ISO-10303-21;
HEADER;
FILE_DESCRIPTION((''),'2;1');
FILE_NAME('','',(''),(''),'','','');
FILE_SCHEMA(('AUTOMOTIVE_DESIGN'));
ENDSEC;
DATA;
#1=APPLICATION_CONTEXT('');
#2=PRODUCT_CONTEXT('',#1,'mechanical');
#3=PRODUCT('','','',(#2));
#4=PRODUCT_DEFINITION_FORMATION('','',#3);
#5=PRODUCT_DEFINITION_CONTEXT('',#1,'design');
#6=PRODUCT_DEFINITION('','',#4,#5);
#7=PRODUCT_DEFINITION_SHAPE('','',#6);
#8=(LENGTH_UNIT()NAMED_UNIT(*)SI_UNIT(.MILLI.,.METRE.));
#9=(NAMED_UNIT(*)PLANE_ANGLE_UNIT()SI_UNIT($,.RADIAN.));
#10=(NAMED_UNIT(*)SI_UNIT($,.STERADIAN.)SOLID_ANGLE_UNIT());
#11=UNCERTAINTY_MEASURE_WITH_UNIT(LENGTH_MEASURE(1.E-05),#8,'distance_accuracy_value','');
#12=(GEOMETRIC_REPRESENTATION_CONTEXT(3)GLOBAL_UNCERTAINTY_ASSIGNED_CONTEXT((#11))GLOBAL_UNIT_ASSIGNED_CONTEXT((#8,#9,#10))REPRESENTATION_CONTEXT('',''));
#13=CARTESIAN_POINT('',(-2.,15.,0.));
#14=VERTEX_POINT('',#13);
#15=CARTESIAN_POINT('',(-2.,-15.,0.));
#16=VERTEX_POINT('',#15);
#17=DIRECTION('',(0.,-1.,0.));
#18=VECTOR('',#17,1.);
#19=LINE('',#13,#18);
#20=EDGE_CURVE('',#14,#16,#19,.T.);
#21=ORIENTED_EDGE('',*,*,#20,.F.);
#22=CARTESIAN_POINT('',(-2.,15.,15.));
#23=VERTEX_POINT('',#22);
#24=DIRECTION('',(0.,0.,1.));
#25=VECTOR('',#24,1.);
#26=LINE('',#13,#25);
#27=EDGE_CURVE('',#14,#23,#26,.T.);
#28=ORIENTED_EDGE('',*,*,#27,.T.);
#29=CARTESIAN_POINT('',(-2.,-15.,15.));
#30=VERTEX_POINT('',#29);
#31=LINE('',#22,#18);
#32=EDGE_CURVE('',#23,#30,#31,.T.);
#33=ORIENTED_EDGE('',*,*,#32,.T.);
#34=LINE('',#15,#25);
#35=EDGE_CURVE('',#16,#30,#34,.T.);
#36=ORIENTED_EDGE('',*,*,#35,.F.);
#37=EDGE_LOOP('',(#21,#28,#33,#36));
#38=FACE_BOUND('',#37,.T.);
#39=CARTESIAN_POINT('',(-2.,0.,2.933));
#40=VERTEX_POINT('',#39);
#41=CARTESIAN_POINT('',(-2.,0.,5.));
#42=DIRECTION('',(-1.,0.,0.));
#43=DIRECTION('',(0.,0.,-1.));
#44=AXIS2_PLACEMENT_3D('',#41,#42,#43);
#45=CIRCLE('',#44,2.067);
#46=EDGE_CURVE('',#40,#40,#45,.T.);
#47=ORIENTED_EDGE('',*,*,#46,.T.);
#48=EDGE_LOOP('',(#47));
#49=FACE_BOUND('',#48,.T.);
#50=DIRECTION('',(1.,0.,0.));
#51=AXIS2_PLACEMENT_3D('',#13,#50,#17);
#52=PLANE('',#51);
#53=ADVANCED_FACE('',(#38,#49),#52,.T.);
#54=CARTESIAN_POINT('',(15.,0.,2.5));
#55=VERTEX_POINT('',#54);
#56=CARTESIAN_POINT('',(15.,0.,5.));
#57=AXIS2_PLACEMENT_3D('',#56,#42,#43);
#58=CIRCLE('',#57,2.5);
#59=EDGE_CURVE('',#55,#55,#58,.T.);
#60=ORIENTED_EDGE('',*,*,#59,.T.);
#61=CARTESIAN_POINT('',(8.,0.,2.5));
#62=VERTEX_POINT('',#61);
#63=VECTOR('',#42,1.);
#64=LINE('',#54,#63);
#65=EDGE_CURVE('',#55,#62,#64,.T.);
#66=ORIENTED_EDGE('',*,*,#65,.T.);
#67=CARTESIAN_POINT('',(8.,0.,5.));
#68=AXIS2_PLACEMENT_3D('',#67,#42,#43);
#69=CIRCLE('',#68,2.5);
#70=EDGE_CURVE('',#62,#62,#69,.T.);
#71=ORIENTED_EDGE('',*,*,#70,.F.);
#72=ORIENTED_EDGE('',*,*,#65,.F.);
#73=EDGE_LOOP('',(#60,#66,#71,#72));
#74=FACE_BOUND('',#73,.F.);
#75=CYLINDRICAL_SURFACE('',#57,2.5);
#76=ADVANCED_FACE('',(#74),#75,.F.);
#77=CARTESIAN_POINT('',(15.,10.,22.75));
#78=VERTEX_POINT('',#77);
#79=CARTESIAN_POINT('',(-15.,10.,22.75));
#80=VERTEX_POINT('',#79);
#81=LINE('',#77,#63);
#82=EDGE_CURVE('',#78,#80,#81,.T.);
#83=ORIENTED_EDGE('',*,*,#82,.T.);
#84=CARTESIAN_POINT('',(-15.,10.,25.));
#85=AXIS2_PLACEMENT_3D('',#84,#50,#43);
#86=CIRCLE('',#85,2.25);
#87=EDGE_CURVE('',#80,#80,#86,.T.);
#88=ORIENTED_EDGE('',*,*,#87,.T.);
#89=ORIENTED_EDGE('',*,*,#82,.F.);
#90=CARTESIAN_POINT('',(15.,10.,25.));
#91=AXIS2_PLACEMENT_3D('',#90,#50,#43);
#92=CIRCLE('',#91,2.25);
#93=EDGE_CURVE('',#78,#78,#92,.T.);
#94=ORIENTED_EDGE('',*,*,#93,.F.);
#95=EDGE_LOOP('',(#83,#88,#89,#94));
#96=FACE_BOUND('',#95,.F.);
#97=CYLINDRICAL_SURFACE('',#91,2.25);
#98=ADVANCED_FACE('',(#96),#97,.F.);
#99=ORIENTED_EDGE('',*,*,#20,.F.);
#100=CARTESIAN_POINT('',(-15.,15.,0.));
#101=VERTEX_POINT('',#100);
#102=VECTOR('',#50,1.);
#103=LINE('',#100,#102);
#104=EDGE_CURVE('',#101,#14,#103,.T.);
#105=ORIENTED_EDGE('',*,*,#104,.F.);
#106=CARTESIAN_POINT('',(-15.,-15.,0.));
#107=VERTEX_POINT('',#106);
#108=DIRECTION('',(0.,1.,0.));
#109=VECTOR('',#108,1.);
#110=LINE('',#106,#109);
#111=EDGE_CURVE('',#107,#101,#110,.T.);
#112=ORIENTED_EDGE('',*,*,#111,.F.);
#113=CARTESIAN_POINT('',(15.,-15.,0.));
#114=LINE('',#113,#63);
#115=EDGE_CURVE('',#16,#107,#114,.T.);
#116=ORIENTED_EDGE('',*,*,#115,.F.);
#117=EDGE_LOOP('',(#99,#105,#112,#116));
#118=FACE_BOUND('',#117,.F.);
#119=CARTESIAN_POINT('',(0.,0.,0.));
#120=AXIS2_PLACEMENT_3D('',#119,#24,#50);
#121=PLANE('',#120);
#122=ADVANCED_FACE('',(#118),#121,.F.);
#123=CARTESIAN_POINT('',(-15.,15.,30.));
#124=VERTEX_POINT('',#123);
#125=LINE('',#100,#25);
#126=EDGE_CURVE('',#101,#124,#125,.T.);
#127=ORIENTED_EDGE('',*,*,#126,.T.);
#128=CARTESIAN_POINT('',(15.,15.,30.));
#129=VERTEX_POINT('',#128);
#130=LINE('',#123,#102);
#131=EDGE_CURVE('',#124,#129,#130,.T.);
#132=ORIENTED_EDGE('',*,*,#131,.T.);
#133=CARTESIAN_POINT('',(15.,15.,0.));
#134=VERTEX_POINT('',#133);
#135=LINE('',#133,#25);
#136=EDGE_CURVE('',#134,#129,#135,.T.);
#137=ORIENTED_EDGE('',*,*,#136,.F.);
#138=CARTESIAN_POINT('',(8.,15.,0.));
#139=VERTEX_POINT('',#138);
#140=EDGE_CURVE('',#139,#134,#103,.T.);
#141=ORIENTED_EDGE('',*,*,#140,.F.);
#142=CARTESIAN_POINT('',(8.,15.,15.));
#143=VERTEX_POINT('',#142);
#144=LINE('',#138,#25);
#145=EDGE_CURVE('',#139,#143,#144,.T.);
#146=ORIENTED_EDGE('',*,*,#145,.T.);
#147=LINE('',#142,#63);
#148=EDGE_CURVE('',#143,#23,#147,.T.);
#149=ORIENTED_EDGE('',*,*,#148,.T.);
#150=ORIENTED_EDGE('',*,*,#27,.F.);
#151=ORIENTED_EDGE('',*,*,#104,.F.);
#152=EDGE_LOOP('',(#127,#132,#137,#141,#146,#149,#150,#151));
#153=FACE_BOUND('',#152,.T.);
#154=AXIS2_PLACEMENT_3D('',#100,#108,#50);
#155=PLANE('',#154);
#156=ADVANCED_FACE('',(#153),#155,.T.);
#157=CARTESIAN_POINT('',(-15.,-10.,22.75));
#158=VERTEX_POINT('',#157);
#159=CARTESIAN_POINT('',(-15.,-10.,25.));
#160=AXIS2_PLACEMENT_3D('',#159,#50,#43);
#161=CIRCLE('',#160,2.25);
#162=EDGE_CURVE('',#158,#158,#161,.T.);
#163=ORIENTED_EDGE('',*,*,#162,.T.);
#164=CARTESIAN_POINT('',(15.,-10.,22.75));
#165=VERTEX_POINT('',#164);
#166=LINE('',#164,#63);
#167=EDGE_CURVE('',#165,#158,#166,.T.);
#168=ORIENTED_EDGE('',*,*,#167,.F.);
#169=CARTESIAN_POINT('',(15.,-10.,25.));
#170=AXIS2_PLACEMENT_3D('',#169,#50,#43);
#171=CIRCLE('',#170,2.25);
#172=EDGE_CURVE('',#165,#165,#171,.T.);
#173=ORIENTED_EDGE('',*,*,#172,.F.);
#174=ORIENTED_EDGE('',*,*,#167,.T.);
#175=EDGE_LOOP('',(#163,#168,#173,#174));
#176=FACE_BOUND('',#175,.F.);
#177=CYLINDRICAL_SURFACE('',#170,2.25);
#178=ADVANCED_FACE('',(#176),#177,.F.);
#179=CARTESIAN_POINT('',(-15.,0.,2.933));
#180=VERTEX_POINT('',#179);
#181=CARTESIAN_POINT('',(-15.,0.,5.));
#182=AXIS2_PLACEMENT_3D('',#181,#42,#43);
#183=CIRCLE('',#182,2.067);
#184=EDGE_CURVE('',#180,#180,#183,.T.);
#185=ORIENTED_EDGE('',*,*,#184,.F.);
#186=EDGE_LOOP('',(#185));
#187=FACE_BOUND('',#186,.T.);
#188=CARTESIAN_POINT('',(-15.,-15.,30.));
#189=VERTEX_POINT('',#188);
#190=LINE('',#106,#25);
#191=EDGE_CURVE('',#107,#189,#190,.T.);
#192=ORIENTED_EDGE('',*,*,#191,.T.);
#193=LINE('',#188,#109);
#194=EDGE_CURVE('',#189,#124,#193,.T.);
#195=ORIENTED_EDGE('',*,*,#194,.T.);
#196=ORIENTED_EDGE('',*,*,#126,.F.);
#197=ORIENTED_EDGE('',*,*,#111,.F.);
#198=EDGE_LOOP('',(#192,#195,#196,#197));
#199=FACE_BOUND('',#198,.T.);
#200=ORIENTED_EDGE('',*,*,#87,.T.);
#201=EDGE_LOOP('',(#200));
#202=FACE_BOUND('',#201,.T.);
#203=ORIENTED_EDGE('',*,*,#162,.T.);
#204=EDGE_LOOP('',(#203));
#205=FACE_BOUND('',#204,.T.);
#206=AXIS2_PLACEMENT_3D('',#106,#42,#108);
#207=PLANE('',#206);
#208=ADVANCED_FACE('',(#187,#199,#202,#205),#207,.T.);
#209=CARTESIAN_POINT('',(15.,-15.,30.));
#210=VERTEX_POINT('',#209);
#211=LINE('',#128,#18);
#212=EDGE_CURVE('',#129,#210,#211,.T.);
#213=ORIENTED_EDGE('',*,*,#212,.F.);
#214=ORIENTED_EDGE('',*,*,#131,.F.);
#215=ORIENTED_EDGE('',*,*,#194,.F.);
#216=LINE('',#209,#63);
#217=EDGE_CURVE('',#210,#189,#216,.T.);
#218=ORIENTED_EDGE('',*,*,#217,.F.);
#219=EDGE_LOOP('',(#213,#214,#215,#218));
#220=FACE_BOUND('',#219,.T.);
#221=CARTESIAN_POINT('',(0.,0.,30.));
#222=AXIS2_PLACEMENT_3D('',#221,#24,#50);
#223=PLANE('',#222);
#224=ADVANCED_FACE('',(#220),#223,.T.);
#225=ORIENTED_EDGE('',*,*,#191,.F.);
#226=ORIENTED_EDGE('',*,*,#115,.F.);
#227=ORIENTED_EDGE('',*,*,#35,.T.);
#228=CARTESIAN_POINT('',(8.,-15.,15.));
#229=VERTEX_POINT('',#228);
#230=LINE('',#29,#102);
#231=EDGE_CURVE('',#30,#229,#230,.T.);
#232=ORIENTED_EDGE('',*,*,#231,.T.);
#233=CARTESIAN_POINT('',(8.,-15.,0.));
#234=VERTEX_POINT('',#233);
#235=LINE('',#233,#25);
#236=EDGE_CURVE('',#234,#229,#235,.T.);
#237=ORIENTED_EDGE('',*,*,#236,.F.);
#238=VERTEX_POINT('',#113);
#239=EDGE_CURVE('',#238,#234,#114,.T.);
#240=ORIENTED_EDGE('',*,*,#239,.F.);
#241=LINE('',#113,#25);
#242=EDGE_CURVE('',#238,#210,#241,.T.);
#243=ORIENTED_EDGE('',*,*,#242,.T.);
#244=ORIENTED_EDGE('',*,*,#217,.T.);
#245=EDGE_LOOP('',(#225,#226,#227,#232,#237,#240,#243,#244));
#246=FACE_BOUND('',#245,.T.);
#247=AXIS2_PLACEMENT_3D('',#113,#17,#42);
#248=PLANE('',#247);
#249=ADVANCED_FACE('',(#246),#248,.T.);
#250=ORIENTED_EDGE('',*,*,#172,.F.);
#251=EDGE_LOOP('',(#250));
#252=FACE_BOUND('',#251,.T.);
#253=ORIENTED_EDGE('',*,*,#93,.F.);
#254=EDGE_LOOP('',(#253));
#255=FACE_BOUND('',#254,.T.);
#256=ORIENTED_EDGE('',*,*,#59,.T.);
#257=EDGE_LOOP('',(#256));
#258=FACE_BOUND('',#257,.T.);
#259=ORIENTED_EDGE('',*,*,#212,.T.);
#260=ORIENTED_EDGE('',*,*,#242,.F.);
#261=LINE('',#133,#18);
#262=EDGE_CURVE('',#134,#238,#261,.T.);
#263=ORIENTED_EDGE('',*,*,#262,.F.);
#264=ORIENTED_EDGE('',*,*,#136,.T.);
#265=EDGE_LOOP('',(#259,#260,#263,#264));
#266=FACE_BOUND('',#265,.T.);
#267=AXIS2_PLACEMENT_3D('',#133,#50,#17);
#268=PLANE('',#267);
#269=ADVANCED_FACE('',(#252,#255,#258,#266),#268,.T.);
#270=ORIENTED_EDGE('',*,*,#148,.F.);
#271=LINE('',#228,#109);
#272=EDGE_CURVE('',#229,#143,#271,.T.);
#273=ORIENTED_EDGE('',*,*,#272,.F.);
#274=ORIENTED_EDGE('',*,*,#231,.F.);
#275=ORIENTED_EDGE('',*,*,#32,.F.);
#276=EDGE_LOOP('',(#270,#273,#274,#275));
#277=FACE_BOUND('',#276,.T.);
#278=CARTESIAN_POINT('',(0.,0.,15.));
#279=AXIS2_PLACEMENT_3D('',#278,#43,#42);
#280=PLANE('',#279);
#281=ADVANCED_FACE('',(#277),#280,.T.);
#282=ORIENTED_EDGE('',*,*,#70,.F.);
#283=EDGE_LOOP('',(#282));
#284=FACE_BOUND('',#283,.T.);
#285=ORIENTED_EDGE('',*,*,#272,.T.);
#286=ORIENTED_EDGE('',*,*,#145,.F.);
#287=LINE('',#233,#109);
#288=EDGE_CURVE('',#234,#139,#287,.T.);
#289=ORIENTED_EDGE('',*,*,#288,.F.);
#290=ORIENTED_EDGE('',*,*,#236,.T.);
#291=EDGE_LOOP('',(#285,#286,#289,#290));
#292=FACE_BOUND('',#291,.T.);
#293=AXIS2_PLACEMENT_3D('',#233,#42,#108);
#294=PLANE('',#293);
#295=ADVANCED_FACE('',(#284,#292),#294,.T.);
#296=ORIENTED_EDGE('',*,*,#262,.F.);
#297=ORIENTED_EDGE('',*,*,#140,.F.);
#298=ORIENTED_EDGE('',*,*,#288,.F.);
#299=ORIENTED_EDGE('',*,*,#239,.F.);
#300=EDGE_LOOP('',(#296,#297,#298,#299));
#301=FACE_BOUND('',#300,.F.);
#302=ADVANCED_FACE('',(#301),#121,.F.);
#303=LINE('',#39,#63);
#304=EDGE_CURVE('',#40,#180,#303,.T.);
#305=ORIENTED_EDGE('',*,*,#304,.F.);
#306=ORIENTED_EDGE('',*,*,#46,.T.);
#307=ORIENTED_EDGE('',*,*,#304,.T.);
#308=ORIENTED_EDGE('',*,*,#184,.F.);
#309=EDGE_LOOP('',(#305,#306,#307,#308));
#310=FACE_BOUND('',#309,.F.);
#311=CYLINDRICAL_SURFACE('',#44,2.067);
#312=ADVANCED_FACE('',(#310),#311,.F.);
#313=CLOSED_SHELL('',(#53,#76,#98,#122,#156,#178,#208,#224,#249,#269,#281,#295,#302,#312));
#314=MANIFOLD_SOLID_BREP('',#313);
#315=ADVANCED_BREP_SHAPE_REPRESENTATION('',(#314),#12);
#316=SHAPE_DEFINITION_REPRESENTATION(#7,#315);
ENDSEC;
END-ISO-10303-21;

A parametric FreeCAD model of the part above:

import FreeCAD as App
import Part
import Sketcher

V = App.Vector

doc = App.newDocument("Part")
body = doc.addObject("PartDesign::Body", "Body")

# Sketch on XY plane
sketch1 = body.newObject("Sketcher::SketchObject", "Sketch")
sketch1.AttachmentSupport = (doc.getObject("XY_Plane"), [""])
sketch1.MapMode = "FlatFace"
sketch1.addGeometry(Part.LineSegment(V(15, 15, 0), V(-15, 15, 0)), False)
sketch1.addGeometry(Part.LineSegment(V(-15, 15, 0), V(-15, -15, 0)), False)
sketch1.addGeometry(Part.LineSegment(V(-15, -15, 0), V(15, -15, 0)), False)
sketch1.addGeometry(Part.LineSegment(V(15, -15, 0), V(15, 15, 0)), False)
sketch1.addConstraint(Sketcher.Constraint("Coincident", 0, 2, 1, 1))
sketch1.addConstraint(Sketcher.Constraint("Coincident", 1, 2, 2, 1))
sketch1.addConstraint(Sketcher.Constraint("Coincident", 2, 2, 3, 1))
sketch1.addConstraint(Sketcher.Constraint("Coincident", 3, 2, 0, 1))
sketch1.addConstraint(Sketcher.Constraint("Horizontal", 0))
sketch1.addConstraint(Sketcher.Constraint("Vertical", 1))
sketch1.addConstraint(Sketcher.Constraint("Horizontal", 2))
sketch1.addConstraint(Sketcher.Constraint("Vertical", 3))
sketch1.addConstraint(Sketcher.Constraint("Symmetric", 0, 2, 2, 2, -1, 1))
sketch1.addConstraint(Sketcher.Constraint("Equal", 2, 1))
sketch1.addConstraint(Sketcher.Constraint("DistanceX", 0, 2, 0, 1, 30.0))
pad1 = body.newObject("PartDesign::Pad", "Pad")
pad1.Profile = sketch1
pad1.Length = 30

# Sketch on YZ plane
sketch2 = body.newObject("Sketcher::SketchObject", "Sketch001")
sketch2.AttachmentSupport = (doc.getObject("YZ_Plane"), [""])
sketch2.MapMode = "FlatFace"
sketch2.AttachmentOffset = App.Placement(V(0, 0, 15), App.Rotation())
sketch2.addGeometry(Part.Circle(V(-10, 25, 0), V(0, 0, 1), 2.2), False)
sketch2.addGeometry(Part.Circle(V(10, 25, 0), V(0, 0, 1), 2.2), False)
sketch2.addConstraint(Sketcher.Constraint("Equal", 0, 1))
sketch2.addConstraint(Sketcher.Constraint("Symmetric", 0, 3, 1, 3, -2))
sketch2.addConstraint(Sketcher.Constraint("Diameter", 0, 4.5))
sketch2.addConstraint(Sketcher.Constraint("DistanceX", 0, 3, -1, 1, 10.0))
sketch2.addConstraint(Sketcher.Constraint("DistanceY", -1, 1, 0, 3, 25.0))
pocket1 = body.newObject("PartDesign::Pocket", "Pocket")
pocket1.Profile = sketch2
pocket1.Type = "ThroughAll"

# Sketch on XY plane
sketch3 = body.newObject("Sketcher::SketchObject", "Sketch002")
sketch3.AttachmentSupport = (doc.getObject("XY_Plane"), [""])
sketch3.MapMode = "FlatFace"
sketch3.addGeometry(Part.LineSegment(V(8, -15, 0), V(-2, -15, 0)), False)
sketch3.addGeometry(Part.LineSegment(V(-2, -15, 0), V(-2, 15, 0)), False)
sketch3.addGeometry(Part.LineSegment(V(-2, 15, 0), V(8, 15, 0)), False)
sketch3.addGeometry(Part.LineSegment(V(8, 15, 0), V(8, -15, 0)), False)
sketch3.addConstraint(Sketcher.Constraint("Coincident", 0, 2, 1, 1))
sketch3.addConstraint(Sketcher.Constraint("Coincident", 1, 2, 2, 1))
sketch3.addConstraint(Sketcher.Constraint("Coincident", 2, 2, 3, 1))
sketch3.addConstraint(Sketcher.Constraint("Coincident", 3, 2, 0, 1))
sketch3.addConstraint(Sketcher.Constraint("Horizontal", 0))
sketch3.addConstraint(Sketcher.Constraint("Vertical", 1))
sketch3.addConstraint(Sketcher.Constraint("Horizontal", 2))
sketch3.addConstraint(Sketcher.Constraint("Vertical", 3))
sketch3.addConstraint(Sketcher.Constraint("DistanceX", 0, 2, 0, 1, 10.0))
sketch3.addConstraint(Sketcher.Constraint("DistanceY", 1, 1, 1, 2, 30.0))
sketch3.addConstraint(Sketcher.Constraint("DistanceX", 0, 2, -1, 1, 2.0))
sketch3.addConstraint(Sketcher.Constraint("DistanceY", 0, 2, -1, 1, 15.0))
pocket2 = body.newObject("PartDesign::Pocket", "Pocket001")
pocket2.Profile = sketch3
pocket2.Length = 15
pocket2.Reversed = True

# Sketch on YZ plane
sketch4 = body.newObject("Sketcher::SketchObject", "Sketch003")
sketch4.AttachmentSupport = (doc.getObject("YZ_Plane"), [""])
sketch4.MapMode = "FlatFace"
sketch4.AttachmentOffset = App.Placement(V(0, 0, 15), App.Rotation())
sketch4.addGeometry(Part.Circle(V(0, 5, 0), V(0, 0, 1), 2.5), False)
sketch4.addConstraint(Sketcher.Constraint("PointOnObject", 0, 3, -2))
sketch4.addConstraint(Sketcher.Constraint("Diameter", 0, 5.0))
sketch4.addConstraint(Sketcher.Constraint("DistanceY", -1, 1, 0, 3, 5.0))
doc.recompute()
hole = body.newObject("PartDesign::Hole", "Hole")
hole.Profile = sketch4
hole.ThreadType = "None"
hole.Diameter = 5
hole.DepthType = "Dimension"
hole.Depth = 10
hole.DrillPoint = "Angled"
hole.DrillPointAngle = 118

# Sketch on YZ plane
sketch5 = body.newObject("Sketcher::SketchObject", "Sketch004")
sketch5.AttachmentSupport = (doc.getObject("YZ_Plane"), [""])
sketch5.MapMode = "FlatFace"
sketch5.AttachmentOffset = App.Placement(V(0, 0, -2), App.Rotation())
sketch5.addGeometry(Part.Circle(V(0, 5, 0), V(0, 0, 1), 2.1), False)
sketch5.addConstraint(Sketcher.Constraint("PointOnObject", 0, 3, -2))
sketch5.addConstraint(Sketcher.Constraint("Diameter", 0, 4.134))
sketch5.addConstraint(Sketcher.Constraint("DistanceY", -1, 1, 0, 3, 5.0))
doc.recompute()
hole2 = body.newObject("PartDesign::Hole", "Hole001")
hole2.Profile = sketch5
hole2.ThreadType = "None"
hole2.Diameter = 4.134
hole2.DepthType = "ThroughAll"

doc.recompute()
